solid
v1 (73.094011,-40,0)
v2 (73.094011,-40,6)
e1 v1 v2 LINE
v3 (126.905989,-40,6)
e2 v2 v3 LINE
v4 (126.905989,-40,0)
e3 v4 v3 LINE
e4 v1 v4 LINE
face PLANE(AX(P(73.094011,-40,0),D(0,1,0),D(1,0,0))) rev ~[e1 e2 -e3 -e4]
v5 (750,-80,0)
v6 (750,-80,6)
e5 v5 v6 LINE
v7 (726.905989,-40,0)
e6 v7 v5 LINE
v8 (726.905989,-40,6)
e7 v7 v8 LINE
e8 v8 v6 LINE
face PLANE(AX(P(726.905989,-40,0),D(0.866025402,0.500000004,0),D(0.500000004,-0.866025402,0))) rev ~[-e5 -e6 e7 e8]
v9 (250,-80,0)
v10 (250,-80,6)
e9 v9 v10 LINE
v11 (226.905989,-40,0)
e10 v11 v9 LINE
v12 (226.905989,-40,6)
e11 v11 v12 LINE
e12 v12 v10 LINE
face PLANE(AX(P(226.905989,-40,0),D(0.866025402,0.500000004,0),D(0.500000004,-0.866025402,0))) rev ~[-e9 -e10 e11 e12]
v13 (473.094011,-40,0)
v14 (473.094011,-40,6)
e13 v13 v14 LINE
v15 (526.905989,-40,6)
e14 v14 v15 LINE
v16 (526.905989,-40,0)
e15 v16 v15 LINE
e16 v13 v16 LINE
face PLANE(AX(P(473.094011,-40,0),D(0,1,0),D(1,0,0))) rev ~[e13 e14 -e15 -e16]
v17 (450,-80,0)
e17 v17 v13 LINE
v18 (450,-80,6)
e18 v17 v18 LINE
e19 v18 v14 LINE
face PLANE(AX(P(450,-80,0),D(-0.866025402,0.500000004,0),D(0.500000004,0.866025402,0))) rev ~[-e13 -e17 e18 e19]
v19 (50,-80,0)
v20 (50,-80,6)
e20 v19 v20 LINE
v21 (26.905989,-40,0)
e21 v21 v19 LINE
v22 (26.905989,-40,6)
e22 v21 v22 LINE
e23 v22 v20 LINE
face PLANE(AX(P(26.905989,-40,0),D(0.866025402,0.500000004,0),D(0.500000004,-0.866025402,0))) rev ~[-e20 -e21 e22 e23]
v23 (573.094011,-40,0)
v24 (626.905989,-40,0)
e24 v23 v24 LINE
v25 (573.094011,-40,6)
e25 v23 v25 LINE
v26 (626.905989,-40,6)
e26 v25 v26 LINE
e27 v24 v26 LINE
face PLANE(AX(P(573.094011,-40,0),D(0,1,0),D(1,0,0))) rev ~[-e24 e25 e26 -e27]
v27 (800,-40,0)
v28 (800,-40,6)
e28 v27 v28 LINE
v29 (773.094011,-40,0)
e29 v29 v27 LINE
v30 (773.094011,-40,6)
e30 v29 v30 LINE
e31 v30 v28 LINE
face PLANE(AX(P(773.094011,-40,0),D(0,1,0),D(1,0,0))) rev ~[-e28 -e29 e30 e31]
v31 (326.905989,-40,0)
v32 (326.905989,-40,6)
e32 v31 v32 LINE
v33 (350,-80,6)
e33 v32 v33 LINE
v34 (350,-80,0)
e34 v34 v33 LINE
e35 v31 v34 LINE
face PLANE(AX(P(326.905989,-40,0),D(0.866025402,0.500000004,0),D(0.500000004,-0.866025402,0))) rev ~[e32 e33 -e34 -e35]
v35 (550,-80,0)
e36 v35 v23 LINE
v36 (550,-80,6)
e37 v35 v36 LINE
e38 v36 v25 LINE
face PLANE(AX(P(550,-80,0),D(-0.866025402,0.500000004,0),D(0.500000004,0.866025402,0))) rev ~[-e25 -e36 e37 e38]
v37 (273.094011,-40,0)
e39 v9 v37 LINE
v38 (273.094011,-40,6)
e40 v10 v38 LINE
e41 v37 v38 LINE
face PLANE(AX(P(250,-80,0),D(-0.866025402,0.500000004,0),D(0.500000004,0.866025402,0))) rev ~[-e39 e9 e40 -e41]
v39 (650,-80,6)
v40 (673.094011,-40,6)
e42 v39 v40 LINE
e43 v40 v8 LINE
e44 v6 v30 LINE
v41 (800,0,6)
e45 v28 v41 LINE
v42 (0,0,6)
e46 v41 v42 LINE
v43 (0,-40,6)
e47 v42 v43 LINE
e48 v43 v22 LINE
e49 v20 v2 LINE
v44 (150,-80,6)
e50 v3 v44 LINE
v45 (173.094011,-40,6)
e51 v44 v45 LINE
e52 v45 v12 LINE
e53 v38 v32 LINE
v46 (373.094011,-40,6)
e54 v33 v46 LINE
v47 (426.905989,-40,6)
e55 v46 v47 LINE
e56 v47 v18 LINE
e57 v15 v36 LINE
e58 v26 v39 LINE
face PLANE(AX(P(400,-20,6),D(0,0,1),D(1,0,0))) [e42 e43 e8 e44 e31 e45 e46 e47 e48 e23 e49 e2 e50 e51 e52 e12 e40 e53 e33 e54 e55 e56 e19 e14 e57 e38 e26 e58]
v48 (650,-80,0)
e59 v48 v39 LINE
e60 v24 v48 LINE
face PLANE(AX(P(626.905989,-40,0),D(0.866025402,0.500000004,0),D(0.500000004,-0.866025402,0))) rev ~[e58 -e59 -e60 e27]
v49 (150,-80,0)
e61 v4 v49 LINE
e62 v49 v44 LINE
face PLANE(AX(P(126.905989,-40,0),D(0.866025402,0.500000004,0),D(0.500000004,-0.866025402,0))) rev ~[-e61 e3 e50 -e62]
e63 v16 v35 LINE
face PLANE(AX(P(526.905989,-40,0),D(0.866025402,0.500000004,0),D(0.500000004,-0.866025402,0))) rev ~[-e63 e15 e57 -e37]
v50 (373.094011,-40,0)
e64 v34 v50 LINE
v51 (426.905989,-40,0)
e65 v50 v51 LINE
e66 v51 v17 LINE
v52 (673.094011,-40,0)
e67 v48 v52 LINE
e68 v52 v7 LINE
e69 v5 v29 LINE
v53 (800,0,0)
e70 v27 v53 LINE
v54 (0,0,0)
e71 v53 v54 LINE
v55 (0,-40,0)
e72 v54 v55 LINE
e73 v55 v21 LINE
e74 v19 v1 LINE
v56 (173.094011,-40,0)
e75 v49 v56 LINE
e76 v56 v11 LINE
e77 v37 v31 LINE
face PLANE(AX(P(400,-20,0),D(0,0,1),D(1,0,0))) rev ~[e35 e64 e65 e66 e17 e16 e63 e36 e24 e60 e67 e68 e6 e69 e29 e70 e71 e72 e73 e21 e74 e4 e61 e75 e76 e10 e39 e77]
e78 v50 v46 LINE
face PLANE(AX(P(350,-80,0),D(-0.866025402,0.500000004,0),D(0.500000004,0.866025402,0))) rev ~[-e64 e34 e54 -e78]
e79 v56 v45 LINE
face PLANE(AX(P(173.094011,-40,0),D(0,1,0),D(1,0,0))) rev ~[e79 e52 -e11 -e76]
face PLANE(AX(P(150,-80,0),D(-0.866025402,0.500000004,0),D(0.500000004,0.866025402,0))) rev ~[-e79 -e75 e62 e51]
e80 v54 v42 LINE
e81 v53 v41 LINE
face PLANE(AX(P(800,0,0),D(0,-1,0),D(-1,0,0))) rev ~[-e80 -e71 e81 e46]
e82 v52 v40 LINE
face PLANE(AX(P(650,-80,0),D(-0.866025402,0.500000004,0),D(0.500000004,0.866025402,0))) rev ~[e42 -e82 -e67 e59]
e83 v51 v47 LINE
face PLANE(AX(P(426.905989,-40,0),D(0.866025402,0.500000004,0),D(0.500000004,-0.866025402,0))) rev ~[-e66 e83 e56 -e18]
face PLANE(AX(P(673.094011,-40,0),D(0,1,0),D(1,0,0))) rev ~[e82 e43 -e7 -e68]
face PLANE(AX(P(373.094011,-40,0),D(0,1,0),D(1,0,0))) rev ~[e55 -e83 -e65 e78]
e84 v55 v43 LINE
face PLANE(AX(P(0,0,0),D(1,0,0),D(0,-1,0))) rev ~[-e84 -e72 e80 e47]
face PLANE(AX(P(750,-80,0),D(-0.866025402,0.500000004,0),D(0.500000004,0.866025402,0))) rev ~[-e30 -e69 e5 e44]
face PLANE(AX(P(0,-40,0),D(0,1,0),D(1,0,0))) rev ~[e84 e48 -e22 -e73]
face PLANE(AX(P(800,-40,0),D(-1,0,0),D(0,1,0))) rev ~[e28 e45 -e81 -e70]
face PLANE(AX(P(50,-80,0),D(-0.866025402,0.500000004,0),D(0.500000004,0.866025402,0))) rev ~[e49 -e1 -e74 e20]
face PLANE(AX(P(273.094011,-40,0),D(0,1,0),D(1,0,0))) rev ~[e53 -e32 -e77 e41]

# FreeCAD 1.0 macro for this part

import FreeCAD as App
import Part
import Sketcher
from FreeCAD import Vector
Q = App.Units.Quantity


def add_polygon(sketch, points):
    """Adds a closed chain of lines whose ends are joined by coincident constraints."""
    first, n = sketch.GeometryCount, len(points)
    for a, b in zip(points, points[1:] + points[:1]):
        sketch.addGeometry(Part.LineSegment(App.Vector(*a, 0), App.Vector(*b, 0)), False)
    for i in range(n):
        sketch.addConstraint(Sketcher.Constraint("Coincident", first + i, 2, first + (i + 1) % n, 1))

doc = App.newDocument("Part")
params = doc.addObject("Spreadsheet::Sheet", "Params")
for row, (alias, value) in enumerate([
    ("sketch1_width", "800 mm"),
    ("sketch1_height", "40 mm"),
    ("pad1_length", "6 mm"),
], start=1):
    params.set(f"A{row}", alias)
    params.set(f"B{row}", "=" + value)
    params.setAlias(f"B{row}", alias)

body = doc.addObject("PartDesign::Body", "Body")

sketch1 = doc.addObject("Sketcher::SketchObject", "Sketch")
body.addObject(sketch1)
sketch1.AttachmentSupport = (doc.XY_Plane, [""])
sketch1.MapMode = "FlatFace"
add_polygon(sketch1, [(800, 0), (0, 0), (0, -40), (27, -40), (50, -80), (73, -40), (127, -40), (150, -80), (173, -40), (227, -40), (250, -80), (273, -40), (327, -40), (350, -80), (373, -40), (427, -40), (450, -80), (473, -40), (527, -40), (550, -80), (573, -40), (627, -40), (650, -80), (673, -40), (727, -40), (750, -80), (773, -40), (800, -40)])
sketch1.addConstraint([
    Sketcher.Constraint("Horizontal", 0),
    Sketcher.Constraint("Vertical", 1),
    Sketcher.Constraint("Horizontal", 2),
    Sketcher.Constraint("Horizontal", 5),
    Sketcher.Constraint("Horizontal", 8),
    Sketcher.Constraint("Horizontal", 11),
    Sketcher.Constraint("Horizontal", 14),
    Sketcher.Constraint("Horizontal", 17),
    Sketcher.Constraint("Horizontal", 20),
    Sketcher.Constraint("Horizontal", 23),
    Sketcher.Constraint("Horizontal", 26),
    Sketcher.Constraint("Vertical", 27),
    Sketcher.Constraint("Coincident", 0, 2, -1, 1),
    Sketcher.Constraint("Parallel", 3, 6),
    Sketcher.Constraint("Parallel", 4, 7),
    Sketcher.Constraint("Parallel", 6, 9),
    Sketcher.Constraint("Parallel", 7, 10),
    Sketcher.Constraint("Parallel", 9, 12),
    Sketcher.Constraint("Parallel", 10, 13),
    Sketcher.Constraint("Parallel", 12, 15),
    Sketcher.Constraint("Parallel", 13, 16),
    Sketcher.Constraint("Parallel", 15, 18),
    Sketcher.Constraint("Parallel", 16, 19),
    Sketcher.Constraint("Parallel", 18, 21),
    Sketcher.Constraint("Parallel", 19, 22),
    Sketcher.Constraint("Parallel", 21, 24),
    Sketcher.Constraint("Parallel", 22, 25),
    Sketcher.Constraint("Horizontal", 2, 2, 4, 2),
    Sketcher.Constraint("Horizontal", 3, 2, 6, 2),
    Sketcher.Constraint("Horizontal", 5, 2, 7, 2),
    Sketcher.Constraint("Horizontal", 6, 2, 9, 2),
    Sketcher.Constraint("Horizontal", 8, 2, 10, 2),
    Sketcher.Constraint("Horizontal", 9, 2, 12, 2),
    Sketcher.Constraint("Horizontal", 11, 2, 13, 2),
    Sketcher.Constraint("Horizontal", 12, 2, 15, 2),
    Sketcher.Constraint("Horizontal", 14, 2, 16, 2),
    Sketcher.Constraint("Horizontal", 15, 2, 18, 2),
    Sketcher.Constraint("Horizontal", 17, 2, 19, 2),
    Sketcher.Constraint("Horizontal", 18, 2, 21, 2),
    Sketcher.Constraint("Horizontal", 20, 2, 22, 2),
    Sketcher.Constraint("Horizontal", 21, 2, 24, 2),
    Sketcher.Constraint("Horizontal", 23, 2, 25, 2),
    Sketcher.Constraint("Equal", 5, 8),
    Sketcher.Constraint("Equal", 8, 11),
    Sketcher.Constraint("Equal", 11, 14),
    Sketcher.Constraint("Equal", 14, 17),
    Sketcher.Constraint("Equal", 17, 20),
    Sketcher.Constraint("Equal", 20, 23),
    Sketcher.Constraint("Equal", 2, 26),
    Sketcher.Constraint("Equal", 3, 4),
    Sketcher.Constraint("DistanceX", 0, 2, 0, 1, 800.0),
    Sketcher.Constraint("DistanceY", 1, 2, 1, 1, 40.0),
    Sketcher.Constraint("Angle", 3, Q("-60 deg")),
    Sketcher.Constraint("DistanceX", -1, 1, 3, 2, 50.0),
    Sketcher.Constraint("DistanceY", 3, 2, -1, 1, 80.0),
])
sketch1.setExpression("Constraints[78]", "Params.sketch1_width")
sketch1.setExpression("Constraints[79]", "Params.sketch1_height")
pad1 = doc.addObject("PartDesign::Pad", "Pad")
body.addObject(pad1)
pad1.Profile = sketch1
pad1.setExpression("Length", "Params.pad1_length")

doc.recompute()
